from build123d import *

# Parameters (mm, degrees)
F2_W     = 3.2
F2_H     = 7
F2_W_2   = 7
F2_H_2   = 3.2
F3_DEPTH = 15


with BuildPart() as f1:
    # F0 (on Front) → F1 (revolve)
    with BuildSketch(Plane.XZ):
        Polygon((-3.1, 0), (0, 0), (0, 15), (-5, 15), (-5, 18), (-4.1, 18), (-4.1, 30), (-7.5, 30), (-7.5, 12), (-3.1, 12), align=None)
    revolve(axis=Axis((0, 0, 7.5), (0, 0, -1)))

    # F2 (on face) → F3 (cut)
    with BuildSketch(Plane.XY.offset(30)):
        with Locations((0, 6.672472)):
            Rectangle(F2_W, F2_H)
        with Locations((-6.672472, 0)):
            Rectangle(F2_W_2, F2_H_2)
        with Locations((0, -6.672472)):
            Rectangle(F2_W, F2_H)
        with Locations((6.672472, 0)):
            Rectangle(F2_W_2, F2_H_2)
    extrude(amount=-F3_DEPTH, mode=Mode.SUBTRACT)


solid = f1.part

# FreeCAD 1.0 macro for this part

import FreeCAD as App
import Part
import Sketcher
Q = App.Units.Quantity


def add_polygon(sketch, points):
    """Adds a closed chain of lines whose ends are joined by coincident constraints."""
    first, n = sketch.GeometryCount, len(points)
    for a, b in zip(points, points[1:] + points[:1]):
        sketch.addGeometry(Part.LineSegment(App.Vector(*a, 0), App.Vector(*b, 0)), False)
    for i in range(n):
        sketch.addConstraint(Sketcher.Constraint("Coincident", first + i, 2, first + (i + 1) % n, 1))

doc = App.newDocument("Part")
params = doc.addObject("Spreadsheet::Sheet", "Params")
for row, (alias, value) in enumerate([
    ("sketch1_width", "5 mm"),
    ("sketch1_height", "15 mm"),
    ("sketch1_height2", "3 mm"),
    ("sketch1_height3", "12 mm"),
    ("sketch1_width2", "3.1 mm"),
    ("revolution_angle", "360 deg"),
    ("sketch2_width", "7 mm"),
    ("sketch2_width2", "3.2 mm"),
    ("pocket1_length", "15 mm"),
], start=1):
    params.set(f"A{row}", alias)
    params.set(f"B{row}", "=" + value)
    params.setAlias(f"B{row}", alias)

body = doc.addObject("PartDesign::Body", "Body")

sketch1 = body.newObject("Sketcher::SketchObject", "Sketch")
sketch1.AttachmentSupport = (doc.getObject("XZ_Plane"), [""])
sketch1.MapMode = "FlatFace"
add_polygon(sketch1, [(-3.1, 0), (0, 0), (0, 15), (-5, 15), (-5, 18), (-4.1, 18), (-4.1, 30), (-7.5, 30), (-7.5, 12), (-3.1, 12)])
sketch1.addConstraint(Sketcher.Constraint("Horizontal", 0))
sketch1.addConstraint(Sketcher.Constraint("Vertical", 1))
sketch1.addConstraint(Sketcher.Constraint("Horizontal", 2))
sketch1.addConstraint(Sketcher.Constraint("Vertical", 3))
sketch1.addConstraint(Sketcher.Constraint("Horizontal", 4))
sketch1.addConstraint(Sketcher.Constraint("Vertical", 5))
sketch1.addConstraint(Sketcher.Constraint("Horizontal", 6))
sketch1.addConstraint(Sketcher.Constraint("Vertical", 7))
sketch1.addConstraint(Sketcher.Constraint("Horizontal", 8))
sketch1.addConstraint(Sketcher.Constraint("Vertical", 9))
sketch1.addConstraint(Sketcher.Constraint("Coincident", 0, 2, -1, 1))
sketch1.addConstraint(Sketcher.Constraint("Equal", 5, 9))
sketch1.addConstraint(Sketcher.Constraint("DistanceX", 2, 2, 2, 1, Q("5 mm")))
sketch1.addConstraint(Sketcher.Constraint("DistanceY", 1, 1, 1, 2, Q("15 mm")))
sketch1.addConstraint(Sketcher.Constraint("DistanceY", 3, 1, 3, 2, Q("3 mm")))
sketch1.addConstraint(Sketcher.Constraint("DistanceY", 5, 1, 5, 2, Q("12 mm")))
sketch1.addConstraint(Sketcher.Constraint("DistanceX", 0, 1, 0, 2, Q("3.1 mm")))
sketch1.addConstraint(Sketcher.Constraint("DistanceX", 4, 1, 4, 2, Q("0.9 mm")))
sketch1.addConstraint(Sketcher.Constraint("DistanceX", 6, 2, 6, 1, Q("3.4 mm")))
sketch1.setExpression("Constraints[22]", "Params.sketch1_width")
sketch1.setExpression("Constraints[23]", "Params.sketch1_height")
sketch1.setExpression("Constraints[24]", "Params.sketch1_height2")
sketch1.setExpression("Constraints[25]", "Params.sketch1_height3")
sketch1.setExpression("Constraints[26]", "Params.sketch1_width2")
revolution = body.newObject("PartDesign::Revolution", "Revolution")
revolution.Profile = sketch1
revolution.ReferenceAxis = (sketch1, ["V_Axis"])
revolution.setExpression("Angle", "Params.revolution_angle")

sketch2 = body.newObject("Sketcher::SketchObject", "Sketch001")
sketch2.AttachmentSupport = (doc.getObject("XY_Plane"), [""])
sketch2.MapMode = "FlatFace"
sketch2.AttachmentOffset = App.Placement(App.Vector(0, 0, 30), App.Rotation())
add_polygon(sketch2, [(-1.6, 10.2), (-1.6, 3.2), (1.6, 3.2), (1.6, 10.2)])
add_polygon(sketch2, [(-10.2, 1.6), (-10.2, -1.6), (-3.2, -1.6), (-3.2, 1.6)])
add_polygon(sketch2, [(-1.6, -3.2), (-1.6, -10.2), (1.6, -10.2), (1.6, -3.2)])
add_polygon(sketch2, [(3.2, 1.6), (3.2, -1.6), (10.2, -1.6), (10.2, 1.6)])
sketch2.addConstraint(Sketcher.Constraint("Vertical", 0))
sketch2.addConstraint(Sketcher.Constraint("Horizontal", 1))
sketch2.addConstraint(Sketcher.Constraint("Vertical", 2))
sketch2.addConstraint(Sketcher.Constraint("Horizontal", 3))
sketch2.addConstraint(Sketcher.Constraint("Vertical", 4))
sketch2.addConstraint(Sketcher.Constraint("Horizontal", 5))
sketch2.addConstraint(Sketcher.Constraint("Vertical", 6))
sketch2.addConstraint(Sketcher.Constraint("Horizontal", 7))
sketch2.addConstraint(Sketcher.Constraint("Vertical", 8))
sketch2.addConstraint(Sketcher.Constraint("Horizontal", 9))
sketch2.addConstraint(Sketcher.Constraint("Vertical", 10))
sketch2.addConstraint(Sketcher.Constraint("Horizontal", 11))
sketch2.addConstraint(Sketcher.Constraint("Vertical", 12))
sketch2.addConstraint(Sketcher.Constraint("Horizontal", 13))
sketch2.addConstraint(Sketcher.Constraint("Vertical", 14))
sketch2.addConstraint(Sketcher.Constraint("Horizontal", 15))
sketch2.addConstraint(Sketcher.Constraint("Symmetric", 2, 2, 8, 2, -1, 1))
sketch2.addConstraint(Sketcher.Constraint("Symmetric", 0, 2, 10, 2, -1, 1))
sketch2.addConstraint(Sketcher.Constraint("Symmetric", 6, 2, 12, 2, -1, 1))
sketch2.addConstraint(Sketcher.Constraint("Symmetric", 4, 2, 14, 2, -1, 1))
sketch2.addConstraint(Sketcher.Constraint("Horizontal", 5, 2, 12, 2))
sketch2.addConstraint(Sketcher.Constraint("Vertical", 3, 2, 8, 2))
sketch2.addConstraint(Sketcher.Constraint("Equal", 15, 0))
sketch2.addConstraint(Sketcher.Constraint("Equal", 11, 4))
sketch2.addConstraint(Sketcher.Constraint("DistanceX", 5, 1, 5, 2, Q("7 mm")))
sketch2.addConstraint(Sketcher.Constraint("DistanceX", 1, 1, 1, 2, Q("3.2 mm")))
sketch2.addConstraint(Sketcher.Constraint("DistanceY", -1, 1, 0, 2, Q("3.172472 mm")))
sketch2.addConstraint(Sketcher.Constraint("DistanceX", 5, 2, -1, 1, Q("3.172472 mm")))
sketch2.setExpression("Constraints[40]", "Params.sketch2_width")
sketch2.setExpression("Constraints[41]", "Params.sketch2_width2")
pocket1 = body.newObject("PartDesign::Pocket", "Pocket")
pocket1.Profile = sketch2
pocket1.setExpression("Length", "Params.pocket1_length")

doc.recompute()
